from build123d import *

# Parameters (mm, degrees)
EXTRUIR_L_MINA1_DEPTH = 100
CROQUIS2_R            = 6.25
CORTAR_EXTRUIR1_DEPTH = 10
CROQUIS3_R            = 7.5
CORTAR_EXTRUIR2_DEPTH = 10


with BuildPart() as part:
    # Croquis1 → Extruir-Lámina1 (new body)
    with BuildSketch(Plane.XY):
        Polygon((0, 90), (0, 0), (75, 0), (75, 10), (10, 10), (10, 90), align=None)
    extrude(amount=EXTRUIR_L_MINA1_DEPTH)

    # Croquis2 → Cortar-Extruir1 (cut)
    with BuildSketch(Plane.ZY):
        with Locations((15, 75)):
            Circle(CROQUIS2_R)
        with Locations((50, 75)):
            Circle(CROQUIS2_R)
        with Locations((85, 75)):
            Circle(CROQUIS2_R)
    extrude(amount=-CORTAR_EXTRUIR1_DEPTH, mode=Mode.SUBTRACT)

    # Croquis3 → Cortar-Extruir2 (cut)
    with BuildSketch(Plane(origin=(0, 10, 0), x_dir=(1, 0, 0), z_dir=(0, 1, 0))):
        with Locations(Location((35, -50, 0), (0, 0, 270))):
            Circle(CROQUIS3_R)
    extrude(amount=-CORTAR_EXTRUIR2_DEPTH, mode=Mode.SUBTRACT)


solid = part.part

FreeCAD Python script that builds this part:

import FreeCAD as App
import Part
import Sketcher

V = App.Vector


def add_polygon(sketch, points):
    """Adds a closed chain of lines whose ends are joined by coincident constraints."""
    first, n = sketch.GeometryCount, len(points)
    for a, b in zip(points, points[1:] + points[:1]):
        sketch.addGeometry(Part.LineSegment(App.Vector(*a, 0), App.Vector(*b, 0)), False)
    for i in range(n):
        sketch.addConstraint(Sketcher.Constraint("Coincident", first + i, 2, first + (i + 1) % n, 1))

doc = App.newDocument("Part")
params = doc.addObject("Spreadsheet::Sheet", "Params")
for row, (alias, value) in enumerate([
    ("sketch1_width", "75 mm"),
    ("sketch1_width2", "65 mm"),
    ("sketch1_height", "90 mm"),
    ("pad1_length", "100 mm"),
    ("sketch2_diameter", "12.5 mm"),
    ("pocket1_length", "10 mm"),
    ("sketch3_diameter", "15 mm"),
    ("pocket2_length", "10 mm"),
], start=1):
    params.set(f"A{row}", alias)
    params.set(f"B{row}", "=" + value)
    params.setAlias(f"B{row}", alias)

body = doc.addObject("PartDesign::Body", "Body")

sketch1 = doc.addObject("Sketcher::SketchObject", "Sketch")
body.addObject(sketch1)
sketch1.AttachmentSupport = (doc.XY_Plane, [""])
sketch1.MapMode = "FlatFace"
add_polygon(sketch1, [(0, 90), (0, 0), (75, 0), (75, 10), (10, 10), (10, 90)])
sketch1.addConstraint(Sketcher.Constraint("Vertical", 0))
sketch1.addConstraint(Sketcher.Constraint("Horizontal", 1))
sketch1.addConstraint(Sketcher.Constraint("Vertical", 2))
sketch1.addConstraint(Sketcher.Constraint("Horizontal", 3))
sketch1.addConstraint(Sketcher.Constraint("Vertical", 4))
sketch1.addConstraint(Sketcher.Constraint("Horizontal", 5))
sketch1.addConstraint(Sketcher.Constraint("Coincident", 0, 2, -1, 1))
sketch1.addConstraint(Sketcher.Constraint("Equal", 5, 2))
sketch1.addConstraint(Sketcher.Constraint("DistanceX", 1, 1, 1, 2, 75.0))
sketch1.addConstraint(Sketcher.Constraint("DistanceX", 3, 2, 3, 1, 65.0))
sketch1.addConstraint(Sketcher.Constraint("DistanceY", 0, 2, 0, 1, 90.0))
sketch1.setExpression("Constraints[14]", "Params.sketch1_width")
sketch1.setExpression("Constraints[15]", "Params.sketch1_width2")
sketch1.setExpression("Constraints[16]", "Params.sketch1_height")
pad1 = doc.addObject("PartDesign::Pad", "Pad")
body.addObject(pad1)
pad1.Profile = sketch1
pad1.setExpression("Length", "Params.pad1_length")

sketch2 = doc.addObject("Sketcher::SketchObject", "Sketch001")
body.addObject(sketch2)
sketch2.AttachmentSupport = (doc.YZ_Plane, [""])
sketch2.MapMode = "FlatFace"
sketch2.addGeometry(Part.Circle(V(75, 15, 0), V(0, 0, 1), 6.25), False)
sketch2.addGeometry(Part.Circle(V(75, 50, 0), V(0, 0, 1), 6.25), False)
sketch2.addGeometry(Part.Circle(V(75, 85, 0), V(0, 0, 1), 6.25), False)
sketch2.addConstraint(Sketcher.Constraint("Equal", 0, 1))
sketch2.addConstraint(Sketcher.Constraint("Equal", 1, 2))
sketch2.addConstraint(Sketcher.Constraint("Vertical", 0, 3, 1, 3))
sketch2.addConstraint(Sketcher.Constraint("Vertical", 1, 3, 2, 3))
sketch2.addConstraint(Sketcher.Constraint("Diameter", 0, 12.5))
sketch2.addConstraint(Sketcher.Constraint("DistanceX", -1, 1, 0, 3, 75.0))
sketch2.addConstraint(Sketcher.Constraint("DistanceY", -1, 1, 0, 3, 15.0))
sketch2.addConstraint(Sketcher.Constraint("DistanceY", -1, 1, 1, 3, 50.0))
sketch2.addConstraint(Sketcher.Constraint("DistanceY", -1, 1, 2, 3, 85.0))
sketch2.setExpression("Constraints[4]", "Params.sketch2_diameter")
pocket1 = doc.addObject("PartDesign::Pocket", "Pocket")
body.addObject(pocket1)
pocket1.Profile = sketch2
pocket1.setExpression("Length", "Params.pocket1_length")
pocket1.Reversed = True

sketch3 = doc.addObject("Sketcher::SketchObject", "Sketch002")
body.addObject(sketch3)
sketch3.AttachmentSupport = (doc.XZ_Plane, [""])
sketch3.MapMode = "FlatFace"
sketch3.AttachmentOffset = App.Placement(V(0, 0, -10), App.Rotation())
sketch3.addGeometry(Part.Circle(V(35, 50, 0), V(0, 0, 1), 7.5), False)
sketch3.addConstraint(Sketcher.Constraint("Diameter", 0, 15.0))
sketch3.addConstraint(Sketcher.Constraint("DistanceX", -1, 1, 0, 3, 35.0))
sketch3.addConstraint(Sketcher.Constraint("DistanceY", -1, 1, 0, 3, 50.0))
sketch3.setExpression("Constraints[0]", "Params.sketch3_diameter")
pocket2 = doc.addObject("PartDesign::Pocket", "Pocket001")
body.addObject(pocket2)
pocket2.Profile = sketch3
pocket2.setExpression("Length", "Params.pocket2_length")
pocket2.Reversed = True

doc.recompute()
